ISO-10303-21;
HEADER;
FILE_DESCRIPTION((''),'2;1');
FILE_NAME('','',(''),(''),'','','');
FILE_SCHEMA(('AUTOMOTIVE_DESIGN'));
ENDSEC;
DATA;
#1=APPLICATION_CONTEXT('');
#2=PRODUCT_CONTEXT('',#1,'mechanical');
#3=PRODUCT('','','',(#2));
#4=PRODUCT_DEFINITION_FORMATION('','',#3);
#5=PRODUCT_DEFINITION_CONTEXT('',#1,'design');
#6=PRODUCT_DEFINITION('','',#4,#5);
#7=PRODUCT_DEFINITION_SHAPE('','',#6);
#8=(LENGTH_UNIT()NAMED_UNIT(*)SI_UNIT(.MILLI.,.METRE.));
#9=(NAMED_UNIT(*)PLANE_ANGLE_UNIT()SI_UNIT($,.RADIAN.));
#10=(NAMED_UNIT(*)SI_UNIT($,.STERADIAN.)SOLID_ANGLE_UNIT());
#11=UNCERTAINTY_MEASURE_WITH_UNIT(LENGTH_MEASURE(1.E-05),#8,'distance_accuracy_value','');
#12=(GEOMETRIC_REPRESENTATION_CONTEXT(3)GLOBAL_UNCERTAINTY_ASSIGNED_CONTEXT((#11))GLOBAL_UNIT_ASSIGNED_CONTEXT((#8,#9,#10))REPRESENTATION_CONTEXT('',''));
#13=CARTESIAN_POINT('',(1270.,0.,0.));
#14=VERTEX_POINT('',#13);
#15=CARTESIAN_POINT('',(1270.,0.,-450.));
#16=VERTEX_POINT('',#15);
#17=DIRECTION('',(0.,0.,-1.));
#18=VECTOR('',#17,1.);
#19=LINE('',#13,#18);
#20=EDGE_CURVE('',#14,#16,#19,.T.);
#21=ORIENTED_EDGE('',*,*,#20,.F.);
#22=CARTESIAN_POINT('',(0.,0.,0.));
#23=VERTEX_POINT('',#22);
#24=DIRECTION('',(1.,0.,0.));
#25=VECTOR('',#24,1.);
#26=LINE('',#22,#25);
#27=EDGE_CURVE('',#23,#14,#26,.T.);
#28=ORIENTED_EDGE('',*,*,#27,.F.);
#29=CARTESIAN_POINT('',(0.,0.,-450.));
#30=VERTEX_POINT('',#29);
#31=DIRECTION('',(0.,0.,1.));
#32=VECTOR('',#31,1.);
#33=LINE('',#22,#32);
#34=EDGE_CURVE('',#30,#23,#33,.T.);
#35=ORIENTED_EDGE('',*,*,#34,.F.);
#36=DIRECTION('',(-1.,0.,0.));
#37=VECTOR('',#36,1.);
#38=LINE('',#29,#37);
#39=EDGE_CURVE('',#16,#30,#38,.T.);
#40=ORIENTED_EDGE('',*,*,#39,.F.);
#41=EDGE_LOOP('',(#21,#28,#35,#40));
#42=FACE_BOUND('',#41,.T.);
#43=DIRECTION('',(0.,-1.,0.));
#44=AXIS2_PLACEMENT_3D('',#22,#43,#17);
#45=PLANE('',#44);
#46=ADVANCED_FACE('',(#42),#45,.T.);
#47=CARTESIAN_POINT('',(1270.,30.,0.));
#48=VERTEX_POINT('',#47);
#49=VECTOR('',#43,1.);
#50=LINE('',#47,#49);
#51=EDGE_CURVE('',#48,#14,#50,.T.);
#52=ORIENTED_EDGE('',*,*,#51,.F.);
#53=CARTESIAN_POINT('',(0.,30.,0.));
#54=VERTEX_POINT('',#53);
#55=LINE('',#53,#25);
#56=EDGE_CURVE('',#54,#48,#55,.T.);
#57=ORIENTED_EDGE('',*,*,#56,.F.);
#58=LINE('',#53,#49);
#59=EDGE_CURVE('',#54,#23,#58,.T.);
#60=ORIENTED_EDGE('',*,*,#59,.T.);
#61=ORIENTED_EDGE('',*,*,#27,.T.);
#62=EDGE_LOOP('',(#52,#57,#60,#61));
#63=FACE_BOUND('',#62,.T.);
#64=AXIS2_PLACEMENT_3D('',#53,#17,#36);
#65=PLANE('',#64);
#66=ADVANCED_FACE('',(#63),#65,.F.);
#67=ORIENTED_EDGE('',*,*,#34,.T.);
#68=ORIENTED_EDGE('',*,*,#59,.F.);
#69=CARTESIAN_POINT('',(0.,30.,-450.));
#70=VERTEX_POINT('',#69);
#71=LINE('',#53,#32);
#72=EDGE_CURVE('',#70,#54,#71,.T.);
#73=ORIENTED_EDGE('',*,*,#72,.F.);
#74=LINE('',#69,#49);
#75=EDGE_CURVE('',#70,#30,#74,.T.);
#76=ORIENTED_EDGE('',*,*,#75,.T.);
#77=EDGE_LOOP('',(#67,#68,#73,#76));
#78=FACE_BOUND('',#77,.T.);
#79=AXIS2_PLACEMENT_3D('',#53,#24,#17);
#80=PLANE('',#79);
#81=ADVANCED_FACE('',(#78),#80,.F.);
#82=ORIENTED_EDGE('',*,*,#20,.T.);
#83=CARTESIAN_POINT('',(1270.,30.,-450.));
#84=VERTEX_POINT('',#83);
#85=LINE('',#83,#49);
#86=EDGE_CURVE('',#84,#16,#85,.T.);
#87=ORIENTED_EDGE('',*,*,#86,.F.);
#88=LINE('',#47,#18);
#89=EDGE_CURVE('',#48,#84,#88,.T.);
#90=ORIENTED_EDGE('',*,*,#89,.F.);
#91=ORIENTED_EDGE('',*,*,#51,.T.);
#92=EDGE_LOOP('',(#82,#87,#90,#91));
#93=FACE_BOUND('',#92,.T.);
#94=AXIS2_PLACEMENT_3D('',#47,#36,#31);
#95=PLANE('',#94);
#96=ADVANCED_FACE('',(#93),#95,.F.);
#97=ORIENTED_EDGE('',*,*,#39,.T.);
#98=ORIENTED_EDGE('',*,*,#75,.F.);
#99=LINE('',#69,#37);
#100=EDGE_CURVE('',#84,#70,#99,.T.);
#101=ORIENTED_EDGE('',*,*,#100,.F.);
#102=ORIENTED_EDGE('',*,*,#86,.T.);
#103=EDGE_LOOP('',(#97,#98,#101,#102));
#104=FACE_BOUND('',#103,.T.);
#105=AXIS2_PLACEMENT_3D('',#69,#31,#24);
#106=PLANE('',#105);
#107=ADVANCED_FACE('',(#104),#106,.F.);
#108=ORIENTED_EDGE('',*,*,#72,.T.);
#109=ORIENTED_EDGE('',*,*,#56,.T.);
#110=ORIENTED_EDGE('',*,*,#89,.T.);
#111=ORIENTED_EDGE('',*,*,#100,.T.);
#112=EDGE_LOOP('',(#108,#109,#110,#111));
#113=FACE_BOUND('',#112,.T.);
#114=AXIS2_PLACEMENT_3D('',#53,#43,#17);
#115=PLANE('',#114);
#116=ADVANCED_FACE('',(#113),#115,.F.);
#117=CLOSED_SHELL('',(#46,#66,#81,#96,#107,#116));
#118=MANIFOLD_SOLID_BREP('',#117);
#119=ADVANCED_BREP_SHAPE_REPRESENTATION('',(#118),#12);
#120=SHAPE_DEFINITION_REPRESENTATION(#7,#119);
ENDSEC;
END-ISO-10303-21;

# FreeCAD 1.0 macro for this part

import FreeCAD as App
import Part
import Sketcher
Q = App.Units.Quantity


def add_polygon(sketch, points):
    """Adds a closed chain of lines whose ends are joined by coincident constraints."""
    first, n = sketch.GeometryCount, len(points)
    for a, b in zip(points, points[1:] + points[:1]):
        sketch.addGeometry(Part.LineSegment(App.Vector(*a, 0), App.Vector(*b, 0)), False)
    for i in range(n):
        sketch.addConstraint(Sketcher.Constraint("Coincident", first + i, 2, first + (i + 1) % n, 1))

doc = App.newDocument("Part")
body = doc.addObject("PartDesign::Body", "Body")

# Sketch on XZ plane
sketch1 = body.newObject("Sketcher::SketchObject", "Sketch")
sketch1.AttachmentSupport = (doc.getObject("XZ_Plane"), [""])
sketch1.MapMode = "FlatFace"
add_polygon(sketch1, [(0, -450), (0, 0), (1270, 0), (1270, -450)])  # lines 0-3
sketch1.addConstraint([
    Sketcher.Constraint("Vertical", 0),
    Sketcher.Constraint("Horizontal", 1),
    Sketcher.Constraint("Vertical", 2),
    Sketcher.Constraint("Horizontal", 3),
    Sketcher.Constraint("Coincident", 0, 2, -1, 1),
    Sketcher.Constraint("DistanceX", 1, 1, 1, 2, Q("1270 mm")),
    Sketcher.Constraint("DistanceY", 0, 1, 0, 2, Q("450 mm")),
])
pad1 = body.newObject("PartDesign::Pad", "Pad")
pad1.Profile = sketch1
pad1.Length = 30
pad1.Reversed = True

doc.recompute()
